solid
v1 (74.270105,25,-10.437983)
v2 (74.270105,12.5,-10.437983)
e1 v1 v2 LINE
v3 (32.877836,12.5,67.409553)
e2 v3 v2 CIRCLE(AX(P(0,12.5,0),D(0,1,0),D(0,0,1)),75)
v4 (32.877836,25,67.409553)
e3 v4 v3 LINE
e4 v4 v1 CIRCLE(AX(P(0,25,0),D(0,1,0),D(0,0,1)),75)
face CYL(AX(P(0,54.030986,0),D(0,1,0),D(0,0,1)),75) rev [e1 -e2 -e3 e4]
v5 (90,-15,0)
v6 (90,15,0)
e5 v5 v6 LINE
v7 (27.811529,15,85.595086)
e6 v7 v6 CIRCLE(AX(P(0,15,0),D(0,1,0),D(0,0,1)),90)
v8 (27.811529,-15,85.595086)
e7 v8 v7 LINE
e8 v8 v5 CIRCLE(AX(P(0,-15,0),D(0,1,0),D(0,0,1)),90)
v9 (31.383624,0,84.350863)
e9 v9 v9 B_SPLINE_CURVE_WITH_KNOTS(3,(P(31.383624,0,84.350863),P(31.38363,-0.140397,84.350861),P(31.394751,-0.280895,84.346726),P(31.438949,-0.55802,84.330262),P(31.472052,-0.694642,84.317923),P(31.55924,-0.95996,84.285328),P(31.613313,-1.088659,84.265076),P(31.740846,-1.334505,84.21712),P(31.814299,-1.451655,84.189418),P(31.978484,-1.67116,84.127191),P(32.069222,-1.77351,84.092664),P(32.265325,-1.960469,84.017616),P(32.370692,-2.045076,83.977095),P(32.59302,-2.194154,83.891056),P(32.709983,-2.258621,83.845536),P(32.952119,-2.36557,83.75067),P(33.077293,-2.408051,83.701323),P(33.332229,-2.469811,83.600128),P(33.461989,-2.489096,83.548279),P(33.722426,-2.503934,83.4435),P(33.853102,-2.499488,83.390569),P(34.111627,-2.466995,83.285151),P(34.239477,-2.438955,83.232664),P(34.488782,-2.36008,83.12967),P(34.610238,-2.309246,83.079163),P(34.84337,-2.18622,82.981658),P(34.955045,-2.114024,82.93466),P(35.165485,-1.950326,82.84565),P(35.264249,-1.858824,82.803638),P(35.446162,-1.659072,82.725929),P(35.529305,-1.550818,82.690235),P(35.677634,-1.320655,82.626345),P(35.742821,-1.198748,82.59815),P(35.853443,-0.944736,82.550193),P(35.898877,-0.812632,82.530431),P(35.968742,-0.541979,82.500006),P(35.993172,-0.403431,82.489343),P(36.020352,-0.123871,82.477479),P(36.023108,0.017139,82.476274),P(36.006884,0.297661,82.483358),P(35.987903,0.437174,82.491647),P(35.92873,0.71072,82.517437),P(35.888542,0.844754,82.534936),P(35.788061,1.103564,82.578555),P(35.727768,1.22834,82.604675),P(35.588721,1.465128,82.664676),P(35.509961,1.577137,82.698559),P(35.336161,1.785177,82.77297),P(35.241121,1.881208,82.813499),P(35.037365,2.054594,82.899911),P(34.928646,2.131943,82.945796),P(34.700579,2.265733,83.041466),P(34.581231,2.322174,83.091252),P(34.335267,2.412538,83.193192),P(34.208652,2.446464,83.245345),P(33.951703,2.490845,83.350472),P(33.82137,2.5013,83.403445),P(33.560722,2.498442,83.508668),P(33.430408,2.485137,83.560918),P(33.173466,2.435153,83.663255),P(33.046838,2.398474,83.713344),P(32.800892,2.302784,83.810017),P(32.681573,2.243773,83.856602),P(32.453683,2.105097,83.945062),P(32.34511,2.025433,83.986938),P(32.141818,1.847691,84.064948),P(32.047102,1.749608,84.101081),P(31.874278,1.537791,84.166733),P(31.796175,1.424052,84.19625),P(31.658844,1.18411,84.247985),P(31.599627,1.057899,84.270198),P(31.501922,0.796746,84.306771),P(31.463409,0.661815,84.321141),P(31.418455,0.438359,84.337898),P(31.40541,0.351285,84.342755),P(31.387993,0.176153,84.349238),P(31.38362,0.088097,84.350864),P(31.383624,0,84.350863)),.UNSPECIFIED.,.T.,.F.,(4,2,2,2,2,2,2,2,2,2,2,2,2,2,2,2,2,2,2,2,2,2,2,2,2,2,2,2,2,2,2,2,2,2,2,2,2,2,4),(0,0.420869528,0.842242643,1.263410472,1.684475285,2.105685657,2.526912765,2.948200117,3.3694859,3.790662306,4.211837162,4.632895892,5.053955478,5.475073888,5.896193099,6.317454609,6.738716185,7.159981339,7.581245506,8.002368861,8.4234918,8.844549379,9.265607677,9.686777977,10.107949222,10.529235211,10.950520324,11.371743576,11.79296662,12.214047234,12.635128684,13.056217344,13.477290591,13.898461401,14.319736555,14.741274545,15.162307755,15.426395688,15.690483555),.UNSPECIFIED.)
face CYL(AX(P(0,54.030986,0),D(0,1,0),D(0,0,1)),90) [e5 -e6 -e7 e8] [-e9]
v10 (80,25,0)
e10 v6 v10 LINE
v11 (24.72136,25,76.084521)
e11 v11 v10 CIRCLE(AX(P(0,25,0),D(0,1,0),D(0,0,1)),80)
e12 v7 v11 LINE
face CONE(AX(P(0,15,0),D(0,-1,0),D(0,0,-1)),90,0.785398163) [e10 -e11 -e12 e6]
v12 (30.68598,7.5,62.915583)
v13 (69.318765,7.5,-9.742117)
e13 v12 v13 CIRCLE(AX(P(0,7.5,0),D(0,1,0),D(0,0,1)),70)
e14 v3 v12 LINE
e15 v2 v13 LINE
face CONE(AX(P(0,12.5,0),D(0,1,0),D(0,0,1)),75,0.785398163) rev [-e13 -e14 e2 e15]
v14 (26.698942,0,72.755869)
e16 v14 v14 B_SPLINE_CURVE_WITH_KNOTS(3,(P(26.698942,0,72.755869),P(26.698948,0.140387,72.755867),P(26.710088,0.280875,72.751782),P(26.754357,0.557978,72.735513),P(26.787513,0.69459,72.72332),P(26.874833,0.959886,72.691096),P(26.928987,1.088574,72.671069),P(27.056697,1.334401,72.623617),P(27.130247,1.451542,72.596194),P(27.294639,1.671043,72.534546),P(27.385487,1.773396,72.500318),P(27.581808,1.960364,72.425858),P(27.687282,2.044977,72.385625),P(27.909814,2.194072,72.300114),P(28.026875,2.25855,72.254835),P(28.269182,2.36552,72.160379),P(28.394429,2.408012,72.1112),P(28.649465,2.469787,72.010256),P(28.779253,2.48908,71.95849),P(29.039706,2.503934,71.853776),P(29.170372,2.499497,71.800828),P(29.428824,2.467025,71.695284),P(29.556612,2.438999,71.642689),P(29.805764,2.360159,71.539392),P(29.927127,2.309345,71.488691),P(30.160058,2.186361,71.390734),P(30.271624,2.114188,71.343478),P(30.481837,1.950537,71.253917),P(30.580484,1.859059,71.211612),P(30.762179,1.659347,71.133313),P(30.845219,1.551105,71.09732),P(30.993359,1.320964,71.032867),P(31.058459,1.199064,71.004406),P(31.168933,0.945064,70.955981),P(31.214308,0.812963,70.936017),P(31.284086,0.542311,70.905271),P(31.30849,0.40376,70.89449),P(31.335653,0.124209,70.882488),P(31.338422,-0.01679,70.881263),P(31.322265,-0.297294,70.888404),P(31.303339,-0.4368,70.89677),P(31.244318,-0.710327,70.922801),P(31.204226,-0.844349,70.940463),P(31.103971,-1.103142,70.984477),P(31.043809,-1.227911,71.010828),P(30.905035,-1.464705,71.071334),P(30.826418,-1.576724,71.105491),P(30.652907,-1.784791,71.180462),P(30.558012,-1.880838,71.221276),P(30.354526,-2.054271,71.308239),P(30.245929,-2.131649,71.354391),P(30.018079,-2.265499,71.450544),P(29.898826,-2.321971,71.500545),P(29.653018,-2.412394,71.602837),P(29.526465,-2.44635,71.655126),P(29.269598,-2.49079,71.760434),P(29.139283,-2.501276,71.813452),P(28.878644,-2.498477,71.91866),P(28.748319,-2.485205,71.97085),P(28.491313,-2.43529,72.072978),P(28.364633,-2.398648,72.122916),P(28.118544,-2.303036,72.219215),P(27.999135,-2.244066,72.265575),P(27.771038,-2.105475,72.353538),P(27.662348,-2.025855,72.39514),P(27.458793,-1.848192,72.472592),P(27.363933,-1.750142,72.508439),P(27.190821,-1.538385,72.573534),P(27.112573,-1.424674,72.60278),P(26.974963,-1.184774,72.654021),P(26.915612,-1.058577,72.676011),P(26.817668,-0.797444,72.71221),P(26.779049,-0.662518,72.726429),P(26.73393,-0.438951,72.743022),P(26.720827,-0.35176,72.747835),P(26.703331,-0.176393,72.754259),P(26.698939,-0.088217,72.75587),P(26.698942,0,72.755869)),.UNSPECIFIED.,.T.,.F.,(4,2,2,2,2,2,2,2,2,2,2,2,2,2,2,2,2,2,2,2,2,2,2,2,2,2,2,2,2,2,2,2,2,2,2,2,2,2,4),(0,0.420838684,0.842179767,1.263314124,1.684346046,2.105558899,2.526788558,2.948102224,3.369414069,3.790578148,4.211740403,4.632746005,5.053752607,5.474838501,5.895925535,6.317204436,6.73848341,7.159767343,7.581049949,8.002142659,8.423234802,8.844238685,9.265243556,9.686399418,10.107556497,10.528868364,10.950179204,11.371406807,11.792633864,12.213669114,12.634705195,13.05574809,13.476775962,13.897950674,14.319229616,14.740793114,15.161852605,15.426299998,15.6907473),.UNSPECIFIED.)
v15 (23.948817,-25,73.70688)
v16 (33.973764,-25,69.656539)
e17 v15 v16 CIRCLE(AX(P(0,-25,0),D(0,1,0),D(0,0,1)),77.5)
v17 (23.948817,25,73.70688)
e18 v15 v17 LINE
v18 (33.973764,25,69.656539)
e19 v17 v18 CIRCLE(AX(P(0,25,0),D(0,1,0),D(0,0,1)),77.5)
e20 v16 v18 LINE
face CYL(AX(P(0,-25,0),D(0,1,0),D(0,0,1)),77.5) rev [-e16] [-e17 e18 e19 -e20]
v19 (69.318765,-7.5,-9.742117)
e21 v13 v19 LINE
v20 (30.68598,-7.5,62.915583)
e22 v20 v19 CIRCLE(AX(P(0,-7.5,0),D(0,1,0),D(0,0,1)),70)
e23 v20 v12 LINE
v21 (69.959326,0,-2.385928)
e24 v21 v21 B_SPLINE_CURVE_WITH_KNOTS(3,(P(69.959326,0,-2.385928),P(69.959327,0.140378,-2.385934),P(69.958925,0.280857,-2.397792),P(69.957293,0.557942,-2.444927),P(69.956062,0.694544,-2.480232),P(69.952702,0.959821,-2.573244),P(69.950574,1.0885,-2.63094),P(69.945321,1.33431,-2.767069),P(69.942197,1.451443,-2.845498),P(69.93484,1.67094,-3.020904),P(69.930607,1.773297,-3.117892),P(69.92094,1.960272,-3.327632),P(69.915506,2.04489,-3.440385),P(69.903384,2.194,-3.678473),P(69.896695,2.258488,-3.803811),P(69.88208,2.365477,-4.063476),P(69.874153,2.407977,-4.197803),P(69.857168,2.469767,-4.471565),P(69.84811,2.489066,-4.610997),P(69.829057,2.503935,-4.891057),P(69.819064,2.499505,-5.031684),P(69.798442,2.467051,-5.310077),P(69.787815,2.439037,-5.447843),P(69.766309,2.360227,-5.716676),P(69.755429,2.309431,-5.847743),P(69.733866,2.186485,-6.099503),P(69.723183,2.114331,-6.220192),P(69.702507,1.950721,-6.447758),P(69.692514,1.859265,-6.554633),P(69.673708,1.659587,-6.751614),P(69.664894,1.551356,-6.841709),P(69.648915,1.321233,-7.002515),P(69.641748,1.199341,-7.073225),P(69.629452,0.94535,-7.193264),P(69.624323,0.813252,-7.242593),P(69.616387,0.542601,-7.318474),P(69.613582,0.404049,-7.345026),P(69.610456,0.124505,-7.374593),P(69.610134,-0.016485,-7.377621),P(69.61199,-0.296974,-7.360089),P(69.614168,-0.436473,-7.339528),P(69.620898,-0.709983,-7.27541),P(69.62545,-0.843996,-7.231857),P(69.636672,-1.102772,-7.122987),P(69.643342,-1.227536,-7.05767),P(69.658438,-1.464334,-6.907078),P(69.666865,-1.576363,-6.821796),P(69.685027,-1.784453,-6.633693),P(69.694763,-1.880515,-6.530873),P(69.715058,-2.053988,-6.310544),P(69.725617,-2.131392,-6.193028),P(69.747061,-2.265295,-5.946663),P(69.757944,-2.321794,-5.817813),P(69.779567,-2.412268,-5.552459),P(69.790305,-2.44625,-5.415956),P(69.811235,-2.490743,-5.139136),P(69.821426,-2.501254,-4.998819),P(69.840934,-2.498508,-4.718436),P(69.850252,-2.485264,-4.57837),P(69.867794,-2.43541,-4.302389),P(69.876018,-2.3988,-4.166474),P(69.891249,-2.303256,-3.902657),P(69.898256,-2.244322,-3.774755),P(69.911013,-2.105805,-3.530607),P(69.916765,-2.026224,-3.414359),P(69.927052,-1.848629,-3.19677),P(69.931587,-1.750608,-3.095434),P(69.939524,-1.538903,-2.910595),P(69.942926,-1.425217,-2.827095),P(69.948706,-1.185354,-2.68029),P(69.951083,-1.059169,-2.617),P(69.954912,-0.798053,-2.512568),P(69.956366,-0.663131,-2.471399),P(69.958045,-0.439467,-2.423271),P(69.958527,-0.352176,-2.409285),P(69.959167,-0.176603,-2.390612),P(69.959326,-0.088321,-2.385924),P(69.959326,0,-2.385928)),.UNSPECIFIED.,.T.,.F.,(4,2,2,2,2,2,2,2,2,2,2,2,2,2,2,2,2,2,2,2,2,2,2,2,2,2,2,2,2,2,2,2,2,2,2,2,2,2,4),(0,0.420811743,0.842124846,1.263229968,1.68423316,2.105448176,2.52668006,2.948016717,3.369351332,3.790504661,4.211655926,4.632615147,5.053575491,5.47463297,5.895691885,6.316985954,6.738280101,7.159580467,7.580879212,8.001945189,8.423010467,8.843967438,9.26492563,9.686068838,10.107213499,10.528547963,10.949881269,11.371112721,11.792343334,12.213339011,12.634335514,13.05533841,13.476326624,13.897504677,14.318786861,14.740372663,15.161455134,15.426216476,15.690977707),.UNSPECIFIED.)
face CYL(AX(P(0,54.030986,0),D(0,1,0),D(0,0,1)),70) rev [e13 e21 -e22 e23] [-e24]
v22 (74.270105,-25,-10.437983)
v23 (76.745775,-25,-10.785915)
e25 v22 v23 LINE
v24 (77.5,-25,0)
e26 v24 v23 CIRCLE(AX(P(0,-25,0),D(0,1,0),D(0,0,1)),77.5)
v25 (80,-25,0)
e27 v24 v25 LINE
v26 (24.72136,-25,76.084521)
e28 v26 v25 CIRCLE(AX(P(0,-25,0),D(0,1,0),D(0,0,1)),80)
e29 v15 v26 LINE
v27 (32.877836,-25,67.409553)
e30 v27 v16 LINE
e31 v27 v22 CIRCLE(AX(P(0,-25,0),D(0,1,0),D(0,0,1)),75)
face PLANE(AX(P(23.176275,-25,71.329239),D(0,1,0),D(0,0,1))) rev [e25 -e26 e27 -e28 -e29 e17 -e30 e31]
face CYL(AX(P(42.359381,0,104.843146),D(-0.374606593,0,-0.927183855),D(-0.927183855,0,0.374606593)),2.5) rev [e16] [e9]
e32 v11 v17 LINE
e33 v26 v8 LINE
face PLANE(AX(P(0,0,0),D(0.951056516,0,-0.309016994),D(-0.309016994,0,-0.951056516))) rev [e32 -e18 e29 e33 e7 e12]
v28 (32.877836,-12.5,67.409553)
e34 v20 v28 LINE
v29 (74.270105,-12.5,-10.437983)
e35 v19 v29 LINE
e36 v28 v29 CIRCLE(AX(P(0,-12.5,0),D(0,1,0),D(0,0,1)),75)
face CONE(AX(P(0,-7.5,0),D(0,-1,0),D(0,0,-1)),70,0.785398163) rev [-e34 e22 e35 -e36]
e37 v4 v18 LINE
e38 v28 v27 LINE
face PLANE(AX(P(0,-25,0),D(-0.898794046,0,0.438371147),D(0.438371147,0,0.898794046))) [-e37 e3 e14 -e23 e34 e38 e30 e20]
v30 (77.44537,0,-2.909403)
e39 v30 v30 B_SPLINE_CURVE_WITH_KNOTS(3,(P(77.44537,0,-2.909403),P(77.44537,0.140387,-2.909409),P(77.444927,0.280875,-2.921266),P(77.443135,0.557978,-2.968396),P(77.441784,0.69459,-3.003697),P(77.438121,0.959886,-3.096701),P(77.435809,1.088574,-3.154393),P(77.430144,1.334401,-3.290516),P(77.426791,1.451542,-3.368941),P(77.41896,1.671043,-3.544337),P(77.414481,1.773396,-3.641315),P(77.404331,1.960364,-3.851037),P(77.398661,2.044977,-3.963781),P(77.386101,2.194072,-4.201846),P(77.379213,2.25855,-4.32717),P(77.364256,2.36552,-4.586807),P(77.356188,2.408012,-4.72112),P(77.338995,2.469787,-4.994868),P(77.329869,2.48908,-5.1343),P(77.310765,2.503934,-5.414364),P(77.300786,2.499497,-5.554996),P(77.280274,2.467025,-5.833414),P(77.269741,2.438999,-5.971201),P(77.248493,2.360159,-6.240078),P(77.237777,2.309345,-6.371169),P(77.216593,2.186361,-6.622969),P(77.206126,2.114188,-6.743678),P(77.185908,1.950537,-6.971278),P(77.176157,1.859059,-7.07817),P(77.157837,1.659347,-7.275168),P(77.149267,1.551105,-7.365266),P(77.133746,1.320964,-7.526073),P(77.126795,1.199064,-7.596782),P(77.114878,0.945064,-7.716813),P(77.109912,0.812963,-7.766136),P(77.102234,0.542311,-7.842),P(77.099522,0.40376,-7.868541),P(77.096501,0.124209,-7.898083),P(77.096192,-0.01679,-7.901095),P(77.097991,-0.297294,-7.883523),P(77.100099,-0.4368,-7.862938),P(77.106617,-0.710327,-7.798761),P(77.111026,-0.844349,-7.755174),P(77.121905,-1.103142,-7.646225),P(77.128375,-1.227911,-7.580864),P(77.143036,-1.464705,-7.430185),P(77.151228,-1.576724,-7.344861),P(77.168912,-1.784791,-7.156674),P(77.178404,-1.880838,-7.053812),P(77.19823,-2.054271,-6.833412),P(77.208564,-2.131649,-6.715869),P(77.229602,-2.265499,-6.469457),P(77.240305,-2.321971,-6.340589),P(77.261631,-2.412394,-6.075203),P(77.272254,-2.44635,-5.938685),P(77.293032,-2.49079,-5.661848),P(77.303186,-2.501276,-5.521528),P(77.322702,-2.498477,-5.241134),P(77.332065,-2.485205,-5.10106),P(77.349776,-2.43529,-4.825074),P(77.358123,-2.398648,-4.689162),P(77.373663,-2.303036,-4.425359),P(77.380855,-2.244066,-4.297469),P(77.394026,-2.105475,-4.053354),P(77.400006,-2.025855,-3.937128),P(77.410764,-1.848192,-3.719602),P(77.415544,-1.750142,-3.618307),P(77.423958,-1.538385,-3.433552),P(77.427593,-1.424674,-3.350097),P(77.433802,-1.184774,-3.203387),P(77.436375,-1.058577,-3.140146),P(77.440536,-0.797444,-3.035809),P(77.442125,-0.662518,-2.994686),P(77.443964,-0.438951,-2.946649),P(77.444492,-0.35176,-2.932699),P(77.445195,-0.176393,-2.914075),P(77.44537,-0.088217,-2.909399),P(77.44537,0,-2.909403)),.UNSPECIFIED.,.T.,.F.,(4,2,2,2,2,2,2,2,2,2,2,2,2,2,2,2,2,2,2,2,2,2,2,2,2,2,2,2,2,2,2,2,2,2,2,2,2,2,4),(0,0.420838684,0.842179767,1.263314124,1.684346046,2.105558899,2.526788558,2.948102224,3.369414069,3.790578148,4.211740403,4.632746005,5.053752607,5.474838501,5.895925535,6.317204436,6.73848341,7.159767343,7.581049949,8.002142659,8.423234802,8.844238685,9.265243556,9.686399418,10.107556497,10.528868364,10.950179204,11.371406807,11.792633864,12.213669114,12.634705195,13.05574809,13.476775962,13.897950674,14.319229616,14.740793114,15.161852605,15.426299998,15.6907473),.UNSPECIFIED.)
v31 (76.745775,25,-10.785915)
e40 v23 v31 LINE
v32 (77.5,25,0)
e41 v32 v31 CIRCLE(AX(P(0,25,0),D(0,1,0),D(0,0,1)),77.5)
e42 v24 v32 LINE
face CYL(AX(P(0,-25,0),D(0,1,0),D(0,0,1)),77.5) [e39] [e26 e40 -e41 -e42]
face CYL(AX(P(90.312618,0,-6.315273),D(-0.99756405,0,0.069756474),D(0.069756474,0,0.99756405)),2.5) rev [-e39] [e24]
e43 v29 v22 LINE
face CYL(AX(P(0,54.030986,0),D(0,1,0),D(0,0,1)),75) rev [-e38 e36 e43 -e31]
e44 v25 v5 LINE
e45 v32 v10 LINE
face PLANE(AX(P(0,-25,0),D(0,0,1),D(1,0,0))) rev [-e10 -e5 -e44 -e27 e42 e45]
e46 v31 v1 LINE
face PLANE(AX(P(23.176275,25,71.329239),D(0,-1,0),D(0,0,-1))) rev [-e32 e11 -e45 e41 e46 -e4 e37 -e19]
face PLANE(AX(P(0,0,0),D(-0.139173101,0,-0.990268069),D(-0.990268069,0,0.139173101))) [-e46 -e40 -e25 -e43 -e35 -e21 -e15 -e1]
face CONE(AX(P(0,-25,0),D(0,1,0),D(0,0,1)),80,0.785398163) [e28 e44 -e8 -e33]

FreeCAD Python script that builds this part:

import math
import FreeCAD as App
import Part
import Sketcher
from FreeCAD import Vector
Q = App.Units.Quantity


def add_polygon(sketch, points):
    """Adds a closed chain of lines whose ends are joined by coincident constraints."""
    first, n = sketch.GeometryCount, len(points)
    for a, b in zip(points, points[1:] + points[:1]):
        sketch.addGeometry(Part.LineSegment(App.Vector(*a, 0), App.Vector(*b, 0)), False)
    for i in range(n):
        sketch.addConstraint(Sketcher.Constraint("Coincident", first + i, 2, first + (i + 1) % n, 1))

doc = App.newDocument("Part")
body = doc.addObject("PartDesign::Body", "Body")

sketch1 = doc.addObject("Sketcher::SketchObject", "Sketch")
body.addObject(sketch1)
sketch1.AttachmentSupport = (doc.XY_Plane, [""])
sketch1.MapMode = "FlatFace"
add_polygon(sketch1, [(75, 25), (75, 12), (70, 8), (70, -8), (75, -12), (75, -25), (80, -25), (90, -15), (90, 15), (80, 25)])
sketch1.addConstraint([
    Sketcher.Constraint("Vertical", 0),
    Sketcher.Constraint("Vertical", 2),
    Sketcher.Constraint("Vertical", 4),
    Sketcher.Constraint("Horizontal", 5),
    Sketcher.Constraint("Vertical", 7),
    Sketcher.Constraint("Horizontal", 9),
    Sketcher.Constraint("Symmetric", 0, 2, 3, 2, -1),
    Sketcher.Constraint("Symmetric", 5, 2, 8, 2, -1),
    Sketcher.Constraint("Perpendicular", 1, 3),
    Sketcher.Constraint("Perpendicular", 3, 6),
    Sketcher.Constraint("Perpendicular", 6, 8),
    Sketcher.Constraint("Equal", 1, 3),
    Sketcher.Constraint("DistanceX", 5, 1, 5, 2, Q("5 mm")),
    Sketcher.Constraint("DistanceY", 2, 2, 2, 1, Q("15 mm")),
    Sketcher.Constraint("DistanceY", 7, 1, 7, 2, Q("30 mm")),
    Sketcher.Constraint("DistanceY", 0, 2, 0, 1, Q("12.5 mm")),
    Sketcher.Constraint("DistanceX", -1, 1, 0, 2, Q("75 mm")),
    Sketcher.Constraint("DistanceX", -1, 1, 1, 2, Q("70 mm")),
])
revolution = doc.addObject("PartDesign::Revolution", "Revolution")
body.addObject(revolution)
revolution.Profile = sketch1
revolution.ReferenceAxis = (sketch1, ["V_Axis"])
revolution.Angle = 72
revolution.Reversed = True

sketch2 = doc.addObject("Sketcher::SketchObject", "Sketch001")
body.addObject(sketch2)
sketch2.AttachmentSupport = (doc.XY_Plane, [""])
sketch2.MapMode = "FlatFace"
add_polygon(sketch2, [(75, 25), (75, 12), (70, 8), (70, -8), (75, -12), (75, -25), (80, -25), (90, -15), (90, 15), (80, 25)])
sketch2.addConstraint([
    Sketcher.Constraint("Vertical", 0),
    Sketcher.Constraint("Vertical", 2),
    Sketcher.Constraint("Vertical", 4),
    Sketcher.Constraint("Horizontal", 5),
    Sketcher.Constraint("Vertical", 7),
    Sketcher.Constraint("Horizontal", 9),
    Sketcher.Constraint("Symmetric", 0, 2, 3, 2, -1),
    Sketcher.Constraint("Symmetric", 5, 2, 8, 2, -1),
    Sketcher.Constraint("Perpendicular", 1, 3),
    Sketcher.Constraint("Perpendicular", 3, 6),
    Sketcher.Constraint("Perpendicular", 6, 8),
    Sketcher.Constraint("Equal", 1, 3),
    Sketcher.Constraint("DistanceX", 5, 1, 5, 2, Q("5 mm")),
    Sketcher.Constraint("DistanceY", 2, 2, 2, 1, Q("15 mm")),
    Sketcher.Constraint("DistanceY", 7, 1, 7, 2, Q("30 mm")),
    Sketcher.Constraint("DistanceY", 0, 2, 0, 1, Q("12.5 mm")),
    Sketcher.Constraint("DistanceX", -1, 1, 0, 2, Q("75 mm")),
    Sketcher.Constraint("DistanceX", -1, 1, 1, 2, Q("70 mm")),
])
revolution2 = doc.addObject("PartDesign::Revolution", "Revolution001")
body.addObject(revolution2)
revolution2.Profile = sketch2
revolution2.ReferenceAxis = (sketch2, ["V_Axis"])
revolution2.Angle = 8

sketch3 = doc.addObject("Sketcher::SketchObject", "Sketch002")
body.addObject(sketch3)
sketch3.AttachmentSupport = (doc.XZ_Plane, [""])
sketch3.MapMode = "FlatFace"
sketch3.addGeometry([
    Part.ArcOfCircle(Part.Circle(Vector(0, 0, 0), Vector(0, 0, 1), 77.5), math.radians(-8), math.radians(0)),
    Part.LineSegment(Vector(77.5, 0, 0), Vector(90, 0, 0)),
    Part.ArcOfCircle(Part.Circle(Vector(0, 0, 0), Vector(0, 0, 1), 90), math.radians(-8), math.radians(0)),
    Part.LineSegment(Vector(89.1, -12.5, 0), Vector(76.7, -10.8, 0)),
    Part.LineSegment(Vector(34, 69.7, 0), Vector(30.7, 62.9, 0)),
    Part.ArcOfCircle(Part.Circle(Vector(0, 0, 0), Vector(0, 0, 1), 70), math.radians(64), math.radians(72)),
    Part.LineSegment(Vector(21.6, 66.6, 0), Vector(23.2, 71.3, 0)),
    Part.LineSegment(Vector(23.2, 71.3, 0), Vector(23.9, 73.7, 0)),
    Part.ArcOfCircle(Part.Circle(Vector(0, 0, 0), Vector(0, 0, 1), 77.5), math.radians(64), math.radians(72)),
], False)
sketch3.addConstraint([
    Sketcher.Constraint("Coincident", 0, 2, 1, 1),
    Sketcher.Constraint("Coincident", 1, 2, 2, 2),
    Sketcher.Constraint("Coincident", 2, 1, 3, 1),
    Sketcher.Constraint("Coincident", 3, 2, 0, 1),
    Sketcher.Constraint("Coincident", 4, 2, 5, 1),
    Sketcher.Constraint("Coincident", 5, 2, 6, 1),
    Sketcher.Constraint("Coincident", 6, 2, 7, 1),
    Sketcher.Constraint("Coincident", 7, 2, 8, 2),
    Sketcher.Constraint("Coincident", 8, 1, 4, 1),
    Sketcher.Constraint("Horizontal", 1),
    Sketcher.Constraint("Coincident", 0, 3, -1, 1),
    Sketcher.Constraint("Coincident", 2, 3, -1, 1),
    Sketcher.Constraint("Coincident", 5, 3, -1, 1),
    Sketcher.Constraint("Coincident", 8, 3, -1, 1),
    Sketcher.Constraint("Equal", 0, 8),
    Sketcher.Constraint("PointOnObject", 0, 2, -1),
    Sketcher.Constraint("Parallel", 6, 7),
    Sketcher.Constraint("Radius", 2, Q("90 mm")),
    Sketcher.Constraint("Radius", 5, Q("70 mm")),
    Sketcher.Constraint("Radius", 0, Q("77.5 mm")),
    Sketcher.Constraint("Angle", 3, Q("172 deg")),
    Sketcher.Constraint("Angle", 4, Q("-116 deg")),
    Sketcher.Constraint("Angle", 6, Q("72 deg")),
    Sketcher.Constraint("Distance", 6, Q("5 mm")),
    Sketcher.Constraint("DistanceY", 8, 1, 6, 2, Q("1.6727 mm")),
    Sketcher.Constraint("DistanceY", 2, 1, -1, 1, Q("12.525579 mm")),
    Sketcher.Constraint("DistanceX", -1, 1, 4, 2, Q("30.68598 mm")),
])
pocket1 = doc.addObject("PartDesign::Pocket", "Pocket")
body.addObject(pocket1)
pocket1.Profile = sketch3
pocket1.Type = "ThroughAll"
pocket1.Midplane = True

sketch4 = doc.addObject("Sketcher::SketchObject", "Sketch003")
body.addObject(sketch4)
sketch4.Placement = App.Placement(Vector(0, 0, 0), App.Rotation(Vector(0.927183855, 0, -0.374606593), Vector(0, 1, 0), Vector(0.374606593, 0, 0.927183855), "ZXY"))
sketch4.addGeometry(Part.Circle(Vector(0, 0, 0), Vector(0, 0, 1), 2.5), False)
sketch4.addConstraint([
    Sketcher.Constraint("Coincident", 0, 3, -1, 1),
    Sketcher.Constraint("Diameter", 0, Q("5 mm")),
])
pocket2 = doc.addObject("PartDesign::Pocket", "Pocket001")
body.addObject(pocket2)
pocket2.Profile = sketch4
pocket2.Type = "ThroughAll"
pocket2.Reversed = True
doc.recompute()

polarpattern = doc.addObject("PartDesign::PolarPattern", "PolarPattern")
body.addObject(polarpattern)
polarpattern.Originals = [pocket2]
polarpattern.Axis = (doc.Y_Axis, [""])
polarpattern.Angle = 72
polarpattern.Occurrences = 2
body.Tip = polarpattern

doc.recompute()
